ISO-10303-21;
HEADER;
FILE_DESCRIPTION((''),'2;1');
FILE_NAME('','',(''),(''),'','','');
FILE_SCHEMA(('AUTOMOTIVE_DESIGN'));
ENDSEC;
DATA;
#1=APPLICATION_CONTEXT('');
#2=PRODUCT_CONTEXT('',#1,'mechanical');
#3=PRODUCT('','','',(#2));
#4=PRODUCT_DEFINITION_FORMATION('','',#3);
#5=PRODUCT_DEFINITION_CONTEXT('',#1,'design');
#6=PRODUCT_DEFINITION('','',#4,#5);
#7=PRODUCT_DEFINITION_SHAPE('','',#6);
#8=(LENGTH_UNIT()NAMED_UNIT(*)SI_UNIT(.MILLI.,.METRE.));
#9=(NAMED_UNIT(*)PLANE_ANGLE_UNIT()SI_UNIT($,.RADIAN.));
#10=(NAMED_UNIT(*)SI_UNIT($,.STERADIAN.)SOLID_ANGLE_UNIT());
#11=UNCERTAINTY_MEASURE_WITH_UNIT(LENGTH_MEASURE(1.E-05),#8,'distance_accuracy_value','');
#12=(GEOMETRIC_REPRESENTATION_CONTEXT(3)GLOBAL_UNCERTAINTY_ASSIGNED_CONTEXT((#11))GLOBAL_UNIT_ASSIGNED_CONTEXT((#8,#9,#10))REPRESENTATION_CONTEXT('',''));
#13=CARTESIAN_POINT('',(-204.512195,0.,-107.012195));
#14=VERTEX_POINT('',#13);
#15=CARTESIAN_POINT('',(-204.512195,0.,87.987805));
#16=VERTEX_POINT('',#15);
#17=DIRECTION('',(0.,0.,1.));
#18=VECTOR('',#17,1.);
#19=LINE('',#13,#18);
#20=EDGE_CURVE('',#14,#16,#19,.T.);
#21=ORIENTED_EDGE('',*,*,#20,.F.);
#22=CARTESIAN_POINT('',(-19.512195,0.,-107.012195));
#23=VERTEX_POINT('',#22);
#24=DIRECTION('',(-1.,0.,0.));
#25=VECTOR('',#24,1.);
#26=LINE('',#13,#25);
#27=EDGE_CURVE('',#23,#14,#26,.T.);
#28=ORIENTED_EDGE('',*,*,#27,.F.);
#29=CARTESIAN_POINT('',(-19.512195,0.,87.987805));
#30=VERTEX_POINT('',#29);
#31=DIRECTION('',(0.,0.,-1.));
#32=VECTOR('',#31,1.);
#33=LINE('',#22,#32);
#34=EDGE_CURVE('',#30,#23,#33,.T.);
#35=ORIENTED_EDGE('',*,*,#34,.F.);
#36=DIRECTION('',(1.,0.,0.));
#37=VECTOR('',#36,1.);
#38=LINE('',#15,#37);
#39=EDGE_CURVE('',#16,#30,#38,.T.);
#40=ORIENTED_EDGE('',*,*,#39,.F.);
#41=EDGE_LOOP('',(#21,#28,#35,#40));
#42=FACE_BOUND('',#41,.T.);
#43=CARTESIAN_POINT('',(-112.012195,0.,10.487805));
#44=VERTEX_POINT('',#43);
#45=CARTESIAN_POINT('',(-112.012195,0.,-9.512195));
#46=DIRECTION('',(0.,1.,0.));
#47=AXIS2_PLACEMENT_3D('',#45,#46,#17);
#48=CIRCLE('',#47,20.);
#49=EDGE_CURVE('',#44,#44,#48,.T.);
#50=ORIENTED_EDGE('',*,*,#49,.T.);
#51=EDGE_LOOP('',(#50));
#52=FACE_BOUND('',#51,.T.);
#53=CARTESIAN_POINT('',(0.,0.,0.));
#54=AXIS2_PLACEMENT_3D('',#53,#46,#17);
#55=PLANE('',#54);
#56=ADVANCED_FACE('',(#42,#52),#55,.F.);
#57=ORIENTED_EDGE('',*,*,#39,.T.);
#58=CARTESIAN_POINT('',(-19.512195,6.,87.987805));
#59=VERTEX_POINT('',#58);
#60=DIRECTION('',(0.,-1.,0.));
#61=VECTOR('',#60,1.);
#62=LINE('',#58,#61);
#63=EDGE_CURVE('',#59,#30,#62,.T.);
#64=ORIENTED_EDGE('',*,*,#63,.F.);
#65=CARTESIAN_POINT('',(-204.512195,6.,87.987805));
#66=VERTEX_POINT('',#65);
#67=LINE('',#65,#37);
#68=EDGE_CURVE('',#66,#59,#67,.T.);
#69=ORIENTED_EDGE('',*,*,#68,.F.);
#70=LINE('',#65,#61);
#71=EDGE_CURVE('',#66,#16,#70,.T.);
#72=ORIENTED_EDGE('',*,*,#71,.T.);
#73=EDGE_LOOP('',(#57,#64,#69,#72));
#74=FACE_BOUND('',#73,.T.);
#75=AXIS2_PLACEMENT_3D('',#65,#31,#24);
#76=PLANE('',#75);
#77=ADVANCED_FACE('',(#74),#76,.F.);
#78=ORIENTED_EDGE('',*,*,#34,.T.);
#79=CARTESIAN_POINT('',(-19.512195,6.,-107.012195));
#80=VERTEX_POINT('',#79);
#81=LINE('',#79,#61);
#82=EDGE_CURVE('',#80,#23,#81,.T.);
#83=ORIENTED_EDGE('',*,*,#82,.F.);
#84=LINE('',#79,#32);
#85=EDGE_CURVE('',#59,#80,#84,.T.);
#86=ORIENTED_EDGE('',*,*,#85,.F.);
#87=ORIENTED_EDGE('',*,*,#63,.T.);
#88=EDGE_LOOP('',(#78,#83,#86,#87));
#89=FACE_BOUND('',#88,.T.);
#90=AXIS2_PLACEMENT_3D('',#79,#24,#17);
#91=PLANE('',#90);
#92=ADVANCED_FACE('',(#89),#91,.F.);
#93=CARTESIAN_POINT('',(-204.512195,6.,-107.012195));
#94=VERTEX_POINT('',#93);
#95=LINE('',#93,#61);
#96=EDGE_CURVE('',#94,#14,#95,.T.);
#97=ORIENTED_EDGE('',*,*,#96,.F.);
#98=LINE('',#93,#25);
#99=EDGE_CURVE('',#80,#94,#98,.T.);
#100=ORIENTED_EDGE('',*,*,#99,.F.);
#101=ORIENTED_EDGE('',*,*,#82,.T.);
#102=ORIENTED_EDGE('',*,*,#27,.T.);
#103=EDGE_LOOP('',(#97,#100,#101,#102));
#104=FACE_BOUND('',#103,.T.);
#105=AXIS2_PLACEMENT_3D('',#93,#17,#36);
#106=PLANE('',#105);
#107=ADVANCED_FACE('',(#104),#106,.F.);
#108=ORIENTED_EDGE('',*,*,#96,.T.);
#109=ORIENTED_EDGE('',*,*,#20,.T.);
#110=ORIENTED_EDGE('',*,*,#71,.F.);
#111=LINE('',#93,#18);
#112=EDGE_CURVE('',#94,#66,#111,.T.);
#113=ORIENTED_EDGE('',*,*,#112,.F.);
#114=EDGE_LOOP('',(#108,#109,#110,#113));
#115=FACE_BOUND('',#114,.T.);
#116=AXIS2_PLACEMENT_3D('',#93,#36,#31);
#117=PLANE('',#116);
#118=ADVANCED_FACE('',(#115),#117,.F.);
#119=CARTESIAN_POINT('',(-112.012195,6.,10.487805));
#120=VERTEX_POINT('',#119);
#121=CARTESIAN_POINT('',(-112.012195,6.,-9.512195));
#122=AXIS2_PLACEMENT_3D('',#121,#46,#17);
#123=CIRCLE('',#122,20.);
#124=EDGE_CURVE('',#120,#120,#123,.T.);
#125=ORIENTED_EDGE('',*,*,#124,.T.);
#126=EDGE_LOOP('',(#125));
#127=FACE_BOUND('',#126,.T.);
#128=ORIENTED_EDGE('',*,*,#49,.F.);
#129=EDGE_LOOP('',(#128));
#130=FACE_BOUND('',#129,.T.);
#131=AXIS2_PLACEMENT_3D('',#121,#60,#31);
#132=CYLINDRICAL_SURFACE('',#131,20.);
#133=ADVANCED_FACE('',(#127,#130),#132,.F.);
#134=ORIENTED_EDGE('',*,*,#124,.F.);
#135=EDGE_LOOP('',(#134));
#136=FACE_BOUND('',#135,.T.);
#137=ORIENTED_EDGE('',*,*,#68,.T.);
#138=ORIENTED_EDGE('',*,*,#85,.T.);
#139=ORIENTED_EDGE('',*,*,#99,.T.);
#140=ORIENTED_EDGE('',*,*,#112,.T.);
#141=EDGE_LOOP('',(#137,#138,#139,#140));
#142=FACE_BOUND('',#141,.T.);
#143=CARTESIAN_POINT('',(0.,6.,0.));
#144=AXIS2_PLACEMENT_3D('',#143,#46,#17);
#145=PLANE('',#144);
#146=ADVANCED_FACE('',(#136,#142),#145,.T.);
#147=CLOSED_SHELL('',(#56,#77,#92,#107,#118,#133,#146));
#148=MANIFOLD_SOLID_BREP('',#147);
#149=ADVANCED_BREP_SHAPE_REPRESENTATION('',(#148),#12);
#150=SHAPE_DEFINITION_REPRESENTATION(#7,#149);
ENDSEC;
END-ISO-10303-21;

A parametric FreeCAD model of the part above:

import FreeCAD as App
import Part
import Sketcher

V = App.Vector
Q = App.Units.Quantity

doc = App.newDocument("Part")
params = doc.addObject("Spreadsheet::Sheet", "Params")
for row, (alias, value) in enumerate([
    ("sketch1_diameter", "40 mm"),
    ("sketch1_width", "185 mm"),
    ("sketch1_height", "195 mm"),
    ("pad1_length", "6 mm"),
], start=1):
    params.set(f"A{row}", alias)
    params.set(f"B{row}", "=" + value)
    params.setAlias(f"B{row}", alias)

body = doc.addObject("PartDesign::Body", "Body")

# Sketch on XZ plane
sketch1 = body.newObject("Sketcher::SketchObject", "Sketch")
sketch1.AttachmentSupport = (doc.getObject("XZ_Plane"), [""])
sketch1.MapMode = "FlatFace"
sketch1.addGeometry(Part.LineSegment(V(-204.512195, -107.012195, 0), V(-204.512195, 87.987805, 0)), False)
sketch1.addGeometry(Part.LineSegment(V(-204.512195, 87.987805, 0), V(-19.512195, 87.987805, 0)), False)
sketch1.addGeometry(Part.LineSegment(V(-19.512195, 87.987805, 0), V(-19.512195, -107.012195, 0)), False)
sketch1.addGeometry(Part.LineSegment(V(-19.512195, -107.012195, 0), V(-204.512195, -107.012195, 0)), False)
sketch1.addGeometry(Part.Circle(V(-112.012195, -9.512195, 0), V(0, 0, 1), 20), False)
sketch1.addConstraint(Sketcher.Constraint("Coincident", 0, 2, 1, 1))
sketch1.addConstraint(Sketcher.Constraint("Coincident", 1, 2, 2, 1))
sketch1.addConstraint(Sketcher.Constraint("Coincident", 2, 2, 3, 1))
sketch1.addConstraint(Sketcher.Constraint("Coincident", 3, 2, 0, 1))
sketch1.addConstraint(Sketcher.Constraint("Vertical", 0))
sketch1.addConstraint(Sketcher.Constraint("Horizontal", 1))
sketch1.addConstraint(Sketcher.Constraint("Vertical", 2))
sketch1.addConstraint(Sketcher.Constraint("Horizontal", 3))
sketch1.addConstraint(Sketcher.Constraint("Diameter", 4, Q("40 mm")))
sketch1.addConstraint(Sketcher.Constraint("DistanceX", 1, 1, 1, 2, Q("185 mm")))
sketch1.addConstraint(Sketcher.Constraint("DistanceY", 0, 1, 0, 2, Q("195 mm")))
sketch1.addConstraint(Sketcher.Constraint("DistanceX", 0, 2, 4, 3, Q("92.5 mm")))
sketch1.addConstraint(Sketcher.Constraint("DistanceY", 4, 3, 0, 2, Q("97.5 mm")))
sketch1.addConstraint(Sketcher.Constraint("DistanceX", 4, 3, -1, 1, Q("112.012195 mm")))
sketch1.addConstraint(Sketcher.Constraint("DistanceY", 4, 3, -1, 1, Q("9.512195 mm")))
sketch1.setExpression("Constraints[8]", "Params.sketch1_diameter")
sketch1.setExpression("Constraints[9]", "Params.sketch1_width")
sketch1.setExpression("Constraints[10]", "Params.sketch1_height")
pad1 = body.newObject("PartDesign::Pad", "Pad")
pad1.Profile = sketch1
pad1.setExpression("Length", "Params.pad1_length")
pad1.Reversed = True

doc.recompute()
